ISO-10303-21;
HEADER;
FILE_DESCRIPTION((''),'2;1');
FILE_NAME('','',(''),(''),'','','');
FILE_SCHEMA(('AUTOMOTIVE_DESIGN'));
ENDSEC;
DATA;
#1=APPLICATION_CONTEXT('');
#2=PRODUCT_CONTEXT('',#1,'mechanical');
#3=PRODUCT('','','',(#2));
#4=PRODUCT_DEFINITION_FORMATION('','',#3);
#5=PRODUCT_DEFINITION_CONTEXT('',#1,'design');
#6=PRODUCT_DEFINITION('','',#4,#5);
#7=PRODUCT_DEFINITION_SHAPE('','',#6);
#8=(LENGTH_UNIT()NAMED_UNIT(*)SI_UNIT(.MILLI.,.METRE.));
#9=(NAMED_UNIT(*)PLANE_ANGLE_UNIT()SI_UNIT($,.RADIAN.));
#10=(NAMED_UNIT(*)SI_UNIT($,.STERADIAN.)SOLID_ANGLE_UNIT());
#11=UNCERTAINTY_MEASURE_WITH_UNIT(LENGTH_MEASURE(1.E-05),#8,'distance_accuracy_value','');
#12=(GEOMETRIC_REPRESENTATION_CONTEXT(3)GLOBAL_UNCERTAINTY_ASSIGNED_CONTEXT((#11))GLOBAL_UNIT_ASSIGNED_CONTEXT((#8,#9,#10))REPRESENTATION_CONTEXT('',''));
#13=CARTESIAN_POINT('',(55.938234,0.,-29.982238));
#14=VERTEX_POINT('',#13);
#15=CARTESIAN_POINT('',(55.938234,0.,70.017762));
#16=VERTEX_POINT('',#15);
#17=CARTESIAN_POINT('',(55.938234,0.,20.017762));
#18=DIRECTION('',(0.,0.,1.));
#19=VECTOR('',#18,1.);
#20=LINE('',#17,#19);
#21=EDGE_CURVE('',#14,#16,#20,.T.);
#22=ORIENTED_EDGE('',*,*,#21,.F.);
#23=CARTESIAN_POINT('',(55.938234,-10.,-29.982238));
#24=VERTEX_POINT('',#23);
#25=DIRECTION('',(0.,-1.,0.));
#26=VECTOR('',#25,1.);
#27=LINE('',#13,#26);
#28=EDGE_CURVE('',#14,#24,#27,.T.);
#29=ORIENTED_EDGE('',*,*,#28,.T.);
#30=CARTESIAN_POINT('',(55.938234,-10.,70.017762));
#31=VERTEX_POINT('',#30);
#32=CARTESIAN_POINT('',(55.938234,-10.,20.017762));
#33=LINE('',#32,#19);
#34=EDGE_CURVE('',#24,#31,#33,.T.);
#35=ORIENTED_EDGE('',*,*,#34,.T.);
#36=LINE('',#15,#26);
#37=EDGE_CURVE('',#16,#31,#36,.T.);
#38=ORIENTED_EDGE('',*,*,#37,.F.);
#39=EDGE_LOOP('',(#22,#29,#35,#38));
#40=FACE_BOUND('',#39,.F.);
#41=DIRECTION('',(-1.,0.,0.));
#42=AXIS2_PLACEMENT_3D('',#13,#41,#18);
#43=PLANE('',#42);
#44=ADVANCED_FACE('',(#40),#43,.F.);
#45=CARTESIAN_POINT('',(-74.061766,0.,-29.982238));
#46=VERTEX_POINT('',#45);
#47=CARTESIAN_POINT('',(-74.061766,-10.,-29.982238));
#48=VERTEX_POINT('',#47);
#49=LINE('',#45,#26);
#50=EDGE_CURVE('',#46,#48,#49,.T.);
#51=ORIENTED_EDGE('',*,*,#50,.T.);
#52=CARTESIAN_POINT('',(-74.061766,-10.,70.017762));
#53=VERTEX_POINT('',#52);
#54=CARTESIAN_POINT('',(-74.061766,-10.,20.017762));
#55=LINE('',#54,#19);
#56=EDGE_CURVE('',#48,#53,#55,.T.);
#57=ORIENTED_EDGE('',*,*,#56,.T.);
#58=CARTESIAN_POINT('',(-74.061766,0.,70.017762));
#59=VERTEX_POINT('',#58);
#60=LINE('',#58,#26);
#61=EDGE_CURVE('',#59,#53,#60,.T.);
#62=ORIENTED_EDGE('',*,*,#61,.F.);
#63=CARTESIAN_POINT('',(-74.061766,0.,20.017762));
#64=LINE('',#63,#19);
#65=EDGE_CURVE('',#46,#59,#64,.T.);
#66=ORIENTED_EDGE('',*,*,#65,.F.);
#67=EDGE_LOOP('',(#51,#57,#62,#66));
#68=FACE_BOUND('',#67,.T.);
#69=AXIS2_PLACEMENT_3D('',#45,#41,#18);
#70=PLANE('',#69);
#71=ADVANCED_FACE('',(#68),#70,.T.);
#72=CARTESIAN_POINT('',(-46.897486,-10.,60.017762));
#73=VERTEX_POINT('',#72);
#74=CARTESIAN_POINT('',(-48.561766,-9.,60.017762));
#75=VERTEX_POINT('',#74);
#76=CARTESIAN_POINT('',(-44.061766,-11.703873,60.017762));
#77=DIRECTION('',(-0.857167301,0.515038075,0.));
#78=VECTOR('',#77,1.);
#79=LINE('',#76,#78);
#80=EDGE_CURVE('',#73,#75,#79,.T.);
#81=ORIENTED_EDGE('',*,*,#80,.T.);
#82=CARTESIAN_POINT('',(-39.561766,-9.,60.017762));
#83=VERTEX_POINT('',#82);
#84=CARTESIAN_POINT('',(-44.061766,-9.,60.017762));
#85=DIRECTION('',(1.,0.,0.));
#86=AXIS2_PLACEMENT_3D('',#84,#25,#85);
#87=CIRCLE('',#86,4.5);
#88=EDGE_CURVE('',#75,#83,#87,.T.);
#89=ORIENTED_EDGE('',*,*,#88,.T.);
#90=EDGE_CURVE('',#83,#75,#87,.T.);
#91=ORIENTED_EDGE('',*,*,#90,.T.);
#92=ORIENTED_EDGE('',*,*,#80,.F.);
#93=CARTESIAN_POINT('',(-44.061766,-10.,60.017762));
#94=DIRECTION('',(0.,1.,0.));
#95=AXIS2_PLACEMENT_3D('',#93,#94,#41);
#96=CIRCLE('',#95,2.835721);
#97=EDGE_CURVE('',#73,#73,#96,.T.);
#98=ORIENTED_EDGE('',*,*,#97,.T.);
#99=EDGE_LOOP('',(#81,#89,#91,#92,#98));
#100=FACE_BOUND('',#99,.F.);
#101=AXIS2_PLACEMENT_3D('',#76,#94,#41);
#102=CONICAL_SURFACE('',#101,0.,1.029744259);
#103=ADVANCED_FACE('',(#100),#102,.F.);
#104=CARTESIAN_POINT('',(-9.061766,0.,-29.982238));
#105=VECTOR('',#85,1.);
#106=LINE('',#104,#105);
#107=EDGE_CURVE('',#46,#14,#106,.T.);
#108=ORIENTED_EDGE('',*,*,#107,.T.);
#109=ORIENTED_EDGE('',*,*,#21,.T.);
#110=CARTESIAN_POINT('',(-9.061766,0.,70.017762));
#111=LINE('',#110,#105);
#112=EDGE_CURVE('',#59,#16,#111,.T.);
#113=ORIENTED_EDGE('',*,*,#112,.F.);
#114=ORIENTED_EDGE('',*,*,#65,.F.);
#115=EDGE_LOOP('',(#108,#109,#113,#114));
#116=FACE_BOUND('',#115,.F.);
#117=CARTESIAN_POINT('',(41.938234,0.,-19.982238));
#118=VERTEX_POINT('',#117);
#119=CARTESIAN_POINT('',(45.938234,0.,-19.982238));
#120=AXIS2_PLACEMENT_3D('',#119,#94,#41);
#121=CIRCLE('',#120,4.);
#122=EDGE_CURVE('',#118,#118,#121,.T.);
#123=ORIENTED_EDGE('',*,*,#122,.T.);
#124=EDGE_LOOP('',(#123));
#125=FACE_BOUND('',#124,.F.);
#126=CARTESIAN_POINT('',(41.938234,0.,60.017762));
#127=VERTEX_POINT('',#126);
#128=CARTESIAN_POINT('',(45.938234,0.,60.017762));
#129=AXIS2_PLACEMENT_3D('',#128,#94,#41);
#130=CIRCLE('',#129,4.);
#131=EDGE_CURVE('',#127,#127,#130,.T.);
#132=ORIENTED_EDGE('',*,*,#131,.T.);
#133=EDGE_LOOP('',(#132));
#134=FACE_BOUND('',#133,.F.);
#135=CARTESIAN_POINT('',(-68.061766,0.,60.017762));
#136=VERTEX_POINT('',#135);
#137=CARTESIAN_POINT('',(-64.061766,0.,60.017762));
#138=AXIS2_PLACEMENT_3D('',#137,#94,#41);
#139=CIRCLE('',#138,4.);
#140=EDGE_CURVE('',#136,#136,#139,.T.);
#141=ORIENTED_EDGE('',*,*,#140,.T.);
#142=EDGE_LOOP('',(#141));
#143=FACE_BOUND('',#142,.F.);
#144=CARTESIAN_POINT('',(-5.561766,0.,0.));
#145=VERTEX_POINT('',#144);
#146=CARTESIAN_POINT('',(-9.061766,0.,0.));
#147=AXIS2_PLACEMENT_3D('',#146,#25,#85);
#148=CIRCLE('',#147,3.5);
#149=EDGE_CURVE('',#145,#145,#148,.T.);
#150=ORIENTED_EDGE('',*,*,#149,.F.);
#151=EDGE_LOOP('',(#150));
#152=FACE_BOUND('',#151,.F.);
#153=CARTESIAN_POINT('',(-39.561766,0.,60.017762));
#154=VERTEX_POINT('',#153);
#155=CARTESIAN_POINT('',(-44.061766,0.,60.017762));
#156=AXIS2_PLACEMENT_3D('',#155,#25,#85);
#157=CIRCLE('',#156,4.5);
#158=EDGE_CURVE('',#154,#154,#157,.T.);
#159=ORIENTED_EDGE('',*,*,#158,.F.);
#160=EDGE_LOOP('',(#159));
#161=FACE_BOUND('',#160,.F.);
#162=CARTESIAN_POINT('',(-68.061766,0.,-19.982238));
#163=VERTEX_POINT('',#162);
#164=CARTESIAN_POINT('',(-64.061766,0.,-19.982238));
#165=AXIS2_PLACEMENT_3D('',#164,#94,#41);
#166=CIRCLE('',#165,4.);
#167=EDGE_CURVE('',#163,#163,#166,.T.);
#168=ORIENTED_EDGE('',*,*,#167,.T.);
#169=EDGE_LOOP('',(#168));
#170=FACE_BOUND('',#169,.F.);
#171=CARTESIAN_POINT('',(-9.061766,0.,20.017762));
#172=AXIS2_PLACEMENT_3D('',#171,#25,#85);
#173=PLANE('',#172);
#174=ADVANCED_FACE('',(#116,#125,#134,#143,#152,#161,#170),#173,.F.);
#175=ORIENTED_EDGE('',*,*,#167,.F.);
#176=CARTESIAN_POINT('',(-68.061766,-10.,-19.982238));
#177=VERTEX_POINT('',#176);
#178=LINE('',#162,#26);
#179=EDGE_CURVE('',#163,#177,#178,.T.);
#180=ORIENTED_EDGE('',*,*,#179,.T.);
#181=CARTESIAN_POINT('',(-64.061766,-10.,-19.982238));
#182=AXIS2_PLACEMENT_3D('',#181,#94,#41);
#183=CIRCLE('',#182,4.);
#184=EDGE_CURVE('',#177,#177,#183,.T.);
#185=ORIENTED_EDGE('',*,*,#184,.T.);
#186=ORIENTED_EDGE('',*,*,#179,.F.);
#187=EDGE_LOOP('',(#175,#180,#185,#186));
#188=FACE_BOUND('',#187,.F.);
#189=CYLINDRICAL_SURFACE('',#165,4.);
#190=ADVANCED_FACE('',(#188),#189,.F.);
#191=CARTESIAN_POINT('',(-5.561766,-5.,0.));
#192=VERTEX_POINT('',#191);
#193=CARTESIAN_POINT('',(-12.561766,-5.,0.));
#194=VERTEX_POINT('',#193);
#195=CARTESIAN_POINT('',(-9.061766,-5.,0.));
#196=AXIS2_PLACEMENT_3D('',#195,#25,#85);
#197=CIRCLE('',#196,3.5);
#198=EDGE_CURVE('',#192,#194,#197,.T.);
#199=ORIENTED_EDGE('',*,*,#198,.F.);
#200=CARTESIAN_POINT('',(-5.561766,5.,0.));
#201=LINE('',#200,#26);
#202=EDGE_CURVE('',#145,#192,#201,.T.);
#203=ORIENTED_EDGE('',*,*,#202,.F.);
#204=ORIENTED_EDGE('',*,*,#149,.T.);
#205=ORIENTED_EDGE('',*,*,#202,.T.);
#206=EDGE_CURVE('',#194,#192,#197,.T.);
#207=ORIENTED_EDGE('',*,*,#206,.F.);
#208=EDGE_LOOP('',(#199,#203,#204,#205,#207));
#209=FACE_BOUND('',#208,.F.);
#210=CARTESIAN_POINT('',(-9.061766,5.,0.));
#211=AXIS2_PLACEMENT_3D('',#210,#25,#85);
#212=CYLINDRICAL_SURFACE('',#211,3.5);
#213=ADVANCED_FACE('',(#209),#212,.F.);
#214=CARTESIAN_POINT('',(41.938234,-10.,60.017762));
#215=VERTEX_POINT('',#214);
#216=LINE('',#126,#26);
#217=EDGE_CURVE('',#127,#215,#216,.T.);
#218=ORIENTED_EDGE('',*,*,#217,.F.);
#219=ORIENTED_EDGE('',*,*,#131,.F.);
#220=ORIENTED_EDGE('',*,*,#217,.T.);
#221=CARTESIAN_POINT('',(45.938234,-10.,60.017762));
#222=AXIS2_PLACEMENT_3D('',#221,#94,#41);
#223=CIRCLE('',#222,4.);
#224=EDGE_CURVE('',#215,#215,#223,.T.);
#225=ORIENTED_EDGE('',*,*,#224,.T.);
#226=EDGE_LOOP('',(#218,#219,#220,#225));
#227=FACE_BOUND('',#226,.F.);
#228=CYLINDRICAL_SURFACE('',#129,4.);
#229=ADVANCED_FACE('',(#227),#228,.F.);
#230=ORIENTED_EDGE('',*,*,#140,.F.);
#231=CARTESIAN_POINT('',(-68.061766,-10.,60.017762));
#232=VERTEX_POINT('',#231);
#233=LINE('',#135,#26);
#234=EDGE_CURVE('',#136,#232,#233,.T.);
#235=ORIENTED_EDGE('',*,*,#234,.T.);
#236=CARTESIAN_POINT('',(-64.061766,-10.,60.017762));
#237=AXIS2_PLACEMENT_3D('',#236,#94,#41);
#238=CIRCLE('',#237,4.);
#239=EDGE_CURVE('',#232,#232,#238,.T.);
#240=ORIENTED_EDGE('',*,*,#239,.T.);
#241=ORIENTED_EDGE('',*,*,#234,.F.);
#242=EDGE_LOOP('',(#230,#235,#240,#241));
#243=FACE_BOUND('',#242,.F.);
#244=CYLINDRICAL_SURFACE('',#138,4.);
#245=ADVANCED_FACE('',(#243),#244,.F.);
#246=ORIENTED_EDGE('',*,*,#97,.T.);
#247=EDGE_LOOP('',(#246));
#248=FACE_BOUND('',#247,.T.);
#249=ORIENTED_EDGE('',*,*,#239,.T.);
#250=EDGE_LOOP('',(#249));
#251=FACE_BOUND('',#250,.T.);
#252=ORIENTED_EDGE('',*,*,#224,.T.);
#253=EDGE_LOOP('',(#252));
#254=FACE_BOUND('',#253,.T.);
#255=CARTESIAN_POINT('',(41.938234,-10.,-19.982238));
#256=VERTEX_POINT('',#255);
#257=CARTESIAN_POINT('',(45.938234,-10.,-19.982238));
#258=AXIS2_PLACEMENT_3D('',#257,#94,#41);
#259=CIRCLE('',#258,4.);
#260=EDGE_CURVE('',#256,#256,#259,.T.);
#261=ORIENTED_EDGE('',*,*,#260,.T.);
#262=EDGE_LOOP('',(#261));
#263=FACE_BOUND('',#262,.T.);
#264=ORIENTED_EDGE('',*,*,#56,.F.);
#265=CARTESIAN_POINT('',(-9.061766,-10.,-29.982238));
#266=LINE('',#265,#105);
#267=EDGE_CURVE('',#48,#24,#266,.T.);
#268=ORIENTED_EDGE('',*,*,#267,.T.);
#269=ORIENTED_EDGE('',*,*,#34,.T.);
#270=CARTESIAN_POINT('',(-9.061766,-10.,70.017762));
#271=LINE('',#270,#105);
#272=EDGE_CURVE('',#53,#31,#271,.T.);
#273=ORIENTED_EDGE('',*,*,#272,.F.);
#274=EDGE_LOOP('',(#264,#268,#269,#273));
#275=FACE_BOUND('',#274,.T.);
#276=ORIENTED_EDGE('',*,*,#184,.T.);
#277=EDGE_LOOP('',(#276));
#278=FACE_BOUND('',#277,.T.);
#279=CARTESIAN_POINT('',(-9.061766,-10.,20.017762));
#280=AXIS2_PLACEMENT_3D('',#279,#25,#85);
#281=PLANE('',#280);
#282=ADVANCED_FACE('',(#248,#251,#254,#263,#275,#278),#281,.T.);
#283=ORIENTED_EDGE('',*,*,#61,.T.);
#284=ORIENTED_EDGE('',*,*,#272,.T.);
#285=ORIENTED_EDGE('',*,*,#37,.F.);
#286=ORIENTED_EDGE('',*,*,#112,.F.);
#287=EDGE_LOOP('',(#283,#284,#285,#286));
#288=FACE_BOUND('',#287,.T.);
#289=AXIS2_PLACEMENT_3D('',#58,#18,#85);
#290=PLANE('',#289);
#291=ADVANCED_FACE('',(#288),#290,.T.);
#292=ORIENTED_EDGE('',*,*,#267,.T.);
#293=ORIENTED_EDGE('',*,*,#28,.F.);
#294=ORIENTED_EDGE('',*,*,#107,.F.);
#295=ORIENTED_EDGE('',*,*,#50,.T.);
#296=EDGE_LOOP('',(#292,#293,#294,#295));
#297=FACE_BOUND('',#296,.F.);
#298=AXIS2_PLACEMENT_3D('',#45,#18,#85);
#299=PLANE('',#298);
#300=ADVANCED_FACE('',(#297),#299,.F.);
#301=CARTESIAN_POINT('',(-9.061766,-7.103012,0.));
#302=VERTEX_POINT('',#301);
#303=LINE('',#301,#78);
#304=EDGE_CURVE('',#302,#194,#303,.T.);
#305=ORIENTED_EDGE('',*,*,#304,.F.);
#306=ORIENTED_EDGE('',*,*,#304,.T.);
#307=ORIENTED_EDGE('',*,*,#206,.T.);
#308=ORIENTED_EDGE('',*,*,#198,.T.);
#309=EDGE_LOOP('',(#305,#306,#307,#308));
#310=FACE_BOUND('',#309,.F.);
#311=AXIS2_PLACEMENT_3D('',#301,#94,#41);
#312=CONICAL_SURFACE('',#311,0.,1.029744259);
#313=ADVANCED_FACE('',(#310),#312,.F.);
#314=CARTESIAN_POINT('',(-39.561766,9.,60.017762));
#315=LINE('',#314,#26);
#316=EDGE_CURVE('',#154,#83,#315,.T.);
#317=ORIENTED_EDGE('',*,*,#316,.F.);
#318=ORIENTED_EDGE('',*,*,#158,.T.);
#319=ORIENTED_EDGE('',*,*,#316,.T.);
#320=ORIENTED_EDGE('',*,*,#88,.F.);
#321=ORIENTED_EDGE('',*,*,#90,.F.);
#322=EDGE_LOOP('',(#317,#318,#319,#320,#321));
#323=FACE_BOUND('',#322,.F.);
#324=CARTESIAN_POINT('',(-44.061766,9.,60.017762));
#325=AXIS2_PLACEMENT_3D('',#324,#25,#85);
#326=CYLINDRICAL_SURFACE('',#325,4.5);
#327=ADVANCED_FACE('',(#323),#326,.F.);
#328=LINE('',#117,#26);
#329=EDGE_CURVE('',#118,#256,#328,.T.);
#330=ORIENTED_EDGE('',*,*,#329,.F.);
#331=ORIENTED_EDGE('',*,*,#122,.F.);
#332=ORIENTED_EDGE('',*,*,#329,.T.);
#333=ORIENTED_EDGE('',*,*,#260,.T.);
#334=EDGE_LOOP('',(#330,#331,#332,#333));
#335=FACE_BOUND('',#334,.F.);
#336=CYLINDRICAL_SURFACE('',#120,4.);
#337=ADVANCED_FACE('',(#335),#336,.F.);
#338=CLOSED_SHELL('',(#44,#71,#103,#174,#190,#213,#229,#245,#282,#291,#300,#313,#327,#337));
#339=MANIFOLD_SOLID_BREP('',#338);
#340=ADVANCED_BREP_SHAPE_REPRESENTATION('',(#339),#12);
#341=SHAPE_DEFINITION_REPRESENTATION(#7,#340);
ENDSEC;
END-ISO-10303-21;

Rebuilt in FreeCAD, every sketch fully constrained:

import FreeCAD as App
import Part
import Sketcher
from FreeCAD import Vector

doc = App.newDocument("Part")
body = doc.addObject("PartDesign::Body", "Body")

# Sketch on XZ plane
sketch1 = body.newObject("Sketcher::SketchObject", "Sketch")
sketch1.AttachmentSupport = (doc.getObject("XZ_Plane"), [""])
sketch1.MapMode = "FlatFace"
sketch1.addGeometry([
    Part.LineSegment(Vector(-74.061766, 70.017762, 0), Vector(-74.061766, -29.982238, 0)),
    Part.LineSegment(Vector(-74.061766, -29.982238, 0), Vector(55.938234, -29.982238, 0)),
    Part.LineSegment(Vector(55.938234, -29.982238, 0), Vector(55.938234, 70.017762, 0)),
    Part.LineSegment(Vector(55.938234, 70.017762, 0), Vector(-74.061766, 70.017762, 0)),
], False)
sketch1.addConstraint([
    Sketcher.Constraint("Coincident", 0, 2, 1, 1),
    Sketcher.Constraint("Coincident", 1, 2, 2, 1),
    Sketcher.Constraint("Coincident", 2, 2, 3, 1),
    Sketcher.Constraint("Coincident", 3, 2, 0, 1),
    Sketcher.Constraint("Vertical", 0),
    Sketcher.Constraint("Horizontal", 1),
    Sketcher.Constraint("Vertical", 2),
    Sketcher.Constraint("Horizontal", 3),
    Sketcher.Constraint("DistanceX", 1, 1, 1, 2, 130.0),
    Sketcher.Constraint("DistanceY", 0, 2, 0, 1, 100.0),
    Sketcher.Constraint("DistanceY", 0, 2, -1, 1, 29.982238),
    Sketcher.Constraint("DistanceX", 0, 2, -1, 1, 74.061766),
])
pad1 = body.newObject("PartDesign::Pad", "Pad")
pad1.Profile = sketch1
pad1.Length = 10

# Sketch on XZ plane
sketch2 = body.newObject("Sketcher::SketchObject", "Sketch001")
sketch2.AttachmentSupport = (doc.getObject("XZ_Plane"), [""])
sketch2.MapMode = "FlatFace"
sketch2.addGeometry(Part.Circle(Vector(-44.061766, 60.017762, 0), Vector(0, 0, 1), 4.5), False)
sketch2.addConstraint([
    Sketcher.Constraint("Diameter", 0, 9.0),
    Sketcher.Constraint("DistanceY", -1, 1, 0, 3, 60.017762),
    Sketcher.Constraint("DistanceX", 0, 3, -1, 1, 44.061766),
])
doc.recompute()
hole = body.newObject("PartDesign::Hole", "Hole")
hole.Profile = sketch2
hole.ThreadType = "None"
hole.Diameter = 9
hole.DepthType = "Dimension"
hole.Depth = 9
hole.DrillPoint = "Angled"
hole.DrillPointAngle = 118
hole.Reversed = True

# Sketch on XZ plane
sketch3 = body.newObject("Sketcher::SketchObject", "Sketch002")
sketch3.AttachmentSupport = (doc.getObject("XZ_Plane"), [""])
sketch3.MapMode = "FlatFace"
sketch3.addGeometry(Part.Circle(Vector(45.938234, -19.982238, 0), Vector(0, 0, 1), 4), False)
sketch3.addConstraint([
    Sketcher.Constraint("Diameter", 0, 8.0),
    Sketcher.Constraint("DistanceY", 0, 3, -1, 1, 19.982238),
    Sketcher.Constraint("DistanceX", -1, 1, 0, 3, 45.938234),
])
pocket1 = body.newObject("PartDesign::Pocket", "Pocket")
pocket1.Profile = sketch3
pocket1.Length = 25
pocket1.Reversed = True

# Sketch on XZ plane
sketch4 = body.newObject("Sketcher::SketchObject", "Sketch003")
sketch4.AttachmentSupport = (doc.getObject("XZ_Plane"), [""])
sketch4.MapMode = "FlatFace"
sketch4.addGeometry(Part.Circle(Vector(-64.061766, -19.982238, 0), Vector(0, 0, 1), 4), False)
sketch4.addConstraint([
    Sketcher.Constraint("Diameter", 0, 8.0),
    Sketcher.Constraint("DistanceY", 0, 3, -1, 1, 19.982238),
    Sketcher.Constraint("DistanceX", 0, 3, -1, 1, 64.061766),
])
pocket2 = body.newObject("PartDesign::Pocket", "Pocket001")
pocket2.Profile = sketch4
pocket2.Length = 25
pocket2.Reversed = True

# Sketch on XZ plane
sketch5 = body.newObject("Sketcher::SketchObject", "Sketch004")
sketch5.AttachmentSupport = (doc.getObject("XZ_Plane"), [""])
sketch5.MapMode = "FlatFace"
sketch5.addGeometry(Part.Circle(Vector(-64.061766, 60.017762, 0), Vector(0, 0, 1), 4), False)
sketch5.addConstraint([
    Sketcher.Constraint("Diameter", 0, 8.0),
    Sketcher.Constraint("DistanceY", -1, 1, 0, 3, 60.017762),
    Sketcher.Constraint("DistanceX", 0, 3, -1, 1, 64.061766),
])
pocket3 = body.newObject("PartDesign::Pocket", "Pocket002")
pocket3.Profile = sketch5
pocket3.Length = 25
pocket3.Reversed = True

# Sketch on XZ plane
sketch6 = body.newObject("Sketcher::SketchObject", "Sketch005")
sketch6.AttachmentSupport = (doc.getObject("XZ_Plane"), [""])
sketch6.MapMode = "FlatFace"
sketch6.addGeometry(Part.Circle(Vector(45.938234, 60.017762, 0), Vector(0, 0, 1), 4), False)
sketch6.addConstraint([
    Sketcher.Constraint("Diameter", 0, 8.0),
    Sketcher.Constraint("DistanceY", -1, 1, 0, 3, 60.017762),
    Sketcher.Constraint("DistanceX", -1, 1, 0, 3, 45.938234),
])
pocket4 = body.newObject("PartDesign::Pocket", "Pocket003")
pocket4.Profile = sketch6
pocket4.Length = 25
pocket4.Reversed = True

# Sketch on XZ plane
sketch7 = body.newObject("Sketcher::SketchObject", "Sketch006")
sketch7.AttachmentSupport = (doc.getObject("XZ_Plane"), [""])
sketch7.MapMode = "FlatFace"
sketch7.addGeometry(Part.Circle(Vector(-9.061766, 0, 0), Vector(0, 0, 1), 3.5), False)
sketch7.addConstraint([
    Sketcher.Constraint("PointOnObject", 0, 3, -1),
    Sketcher.Constraint("Diameter", 0, 7.0),
    Sketcher.Constraint("DistanceX", 0, 3, -1, 1, 9.061766),
])
doc.recompute()
hole2 = body.newObject("PartDesign::Hole", "Hole001")
hole2.Profile = sketch7
hole2.ThreadType = "None"
hole2.Diameter = 7
hole2.DepthType = "Dimension"
hole2.Depth = 5
hole2.DrillPoint = "Angled"
hole2.DrillPointAngle = 118
hole2.Reversed = True

doc.recompute()
